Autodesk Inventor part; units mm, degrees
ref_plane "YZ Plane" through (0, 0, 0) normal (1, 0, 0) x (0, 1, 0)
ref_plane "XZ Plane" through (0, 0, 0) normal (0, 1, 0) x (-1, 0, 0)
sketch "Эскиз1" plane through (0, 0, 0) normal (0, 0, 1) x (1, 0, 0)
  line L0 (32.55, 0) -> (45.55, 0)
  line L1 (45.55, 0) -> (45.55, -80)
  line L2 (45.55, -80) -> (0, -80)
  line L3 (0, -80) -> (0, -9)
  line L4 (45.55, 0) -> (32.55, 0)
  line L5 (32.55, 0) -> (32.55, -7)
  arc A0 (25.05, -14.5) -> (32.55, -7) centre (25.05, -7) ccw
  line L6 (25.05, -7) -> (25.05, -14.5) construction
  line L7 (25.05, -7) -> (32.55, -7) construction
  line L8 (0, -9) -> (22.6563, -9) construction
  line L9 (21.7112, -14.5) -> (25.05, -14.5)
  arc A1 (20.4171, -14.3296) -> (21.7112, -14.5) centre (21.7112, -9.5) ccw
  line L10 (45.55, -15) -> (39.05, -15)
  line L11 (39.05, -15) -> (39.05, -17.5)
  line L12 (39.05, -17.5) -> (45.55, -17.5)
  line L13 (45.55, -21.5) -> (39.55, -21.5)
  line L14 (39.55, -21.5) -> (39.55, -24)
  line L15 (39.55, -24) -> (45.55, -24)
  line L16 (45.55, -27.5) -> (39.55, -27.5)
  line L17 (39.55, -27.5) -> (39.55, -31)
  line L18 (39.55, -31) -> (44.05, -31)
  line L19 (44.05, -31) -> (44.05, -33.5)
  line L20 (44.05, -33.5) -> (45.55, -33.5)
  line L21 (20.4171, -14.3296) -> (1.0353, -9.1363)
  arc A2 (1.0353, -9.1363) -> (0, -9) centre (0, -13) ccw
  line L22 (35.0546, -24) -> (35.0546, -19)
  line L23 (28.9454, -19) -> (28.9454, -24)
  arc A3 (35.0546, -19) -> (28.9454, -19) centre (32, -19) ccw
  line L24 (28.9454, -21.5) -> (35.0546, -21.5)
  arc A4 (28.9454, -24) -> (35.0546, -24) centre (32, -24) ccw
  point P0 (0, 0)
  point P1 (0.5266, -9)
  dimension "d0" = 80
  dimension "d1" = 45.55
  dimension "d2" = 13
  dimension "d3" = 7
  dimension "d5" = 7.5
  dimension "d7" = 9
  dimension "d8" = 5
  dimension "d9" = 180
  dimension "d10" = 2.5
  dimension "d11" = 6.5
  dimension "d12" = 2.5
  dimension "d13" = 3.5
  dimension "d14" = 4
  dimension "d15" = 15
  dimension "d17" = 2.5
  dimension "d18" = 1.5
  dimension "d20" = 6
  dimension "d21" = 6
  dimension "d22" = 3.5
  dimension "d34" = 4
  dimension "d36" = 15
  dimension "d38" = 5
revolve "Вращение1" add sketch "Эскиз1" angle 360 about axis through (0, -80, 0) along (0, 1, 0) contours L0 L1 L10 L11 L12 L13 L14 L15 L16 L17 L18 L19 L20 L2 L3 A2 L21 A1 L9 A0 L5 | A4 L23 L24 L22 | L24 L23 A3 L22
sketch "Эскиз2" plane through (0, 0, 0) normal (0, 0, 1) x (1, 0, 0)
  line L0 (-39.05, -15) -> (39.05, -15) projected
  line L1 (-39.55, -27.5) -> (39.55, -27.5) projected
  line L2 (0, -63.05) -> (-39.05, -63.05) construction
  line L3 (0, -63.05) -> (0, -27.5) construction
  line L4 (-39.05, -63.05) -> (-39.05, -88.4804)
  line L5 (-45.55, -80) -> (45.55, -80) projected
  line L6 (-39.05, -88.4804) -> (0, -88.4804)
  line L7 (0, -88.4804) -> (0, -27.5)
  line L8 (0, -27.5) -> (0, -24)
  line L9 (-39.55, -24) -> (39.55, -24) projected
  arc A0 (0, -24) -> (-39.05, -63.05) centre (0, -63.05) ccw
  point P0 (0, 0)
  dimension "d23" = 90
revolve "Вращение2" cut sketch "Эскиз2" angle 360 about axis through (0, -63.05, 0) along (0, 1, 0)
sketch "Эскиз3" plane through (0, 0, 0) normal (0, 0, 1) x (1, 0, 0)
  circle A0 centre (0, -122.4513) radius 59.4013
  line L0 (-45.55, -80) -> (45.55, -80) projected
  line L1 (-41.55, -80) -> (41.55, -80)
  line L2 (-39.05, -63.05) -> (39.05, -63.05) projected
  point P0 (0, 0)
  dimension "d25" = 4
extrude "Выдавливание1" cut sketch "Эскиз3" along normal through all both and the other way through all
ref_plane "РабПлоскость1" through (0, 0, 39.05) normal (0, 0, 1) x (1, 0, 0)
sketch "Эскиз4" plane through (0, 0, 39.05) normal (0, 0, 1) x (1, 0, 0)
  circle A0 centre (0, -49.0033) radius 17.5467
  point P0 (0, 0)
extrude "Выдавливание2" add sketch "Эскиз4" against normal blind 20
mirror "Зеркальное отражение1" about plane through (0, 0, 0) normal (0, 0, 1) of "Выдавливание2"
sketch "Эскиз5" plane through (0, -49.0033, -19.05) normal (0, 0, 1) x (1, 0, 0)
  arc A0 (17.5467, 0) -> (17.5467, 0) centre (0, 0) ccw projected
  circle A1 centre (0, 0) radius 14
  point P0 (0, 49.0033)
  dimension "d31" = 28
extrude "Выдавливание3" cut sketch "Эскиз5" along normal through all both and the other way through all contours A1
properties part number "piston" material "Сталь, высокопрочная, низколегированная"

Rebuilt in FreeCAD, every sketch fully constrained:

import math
import FreeCAD as App
import Part
import Sketcher

V = App.Vector
Q = App.Units.Quantity

doc = App.newDocument("Part")
body = doc.addObject("PartDesign::Body", "Body")

# Sketch on XY plane
sketch1 = body.newObject("Sketcher::SketchObject", "Sketch")
sketch1.AttachmentSupport = (doc.getObject("XY_Plane"), [""])
sketch1.MapMode = "FlatFace"
sketch1.addGeometry(Part.LineSegment(V(45.55, 0, 0), V(32.55, 0, 0)), False)
sketch1.addGeometry(Part.LineSegment(V(32.55, 0, 0), V(32.55, -7, 0)), False)
sketch1.addGeometry(Part.ArcOfCircle(Part.Circle(V(25.05, -7, 0), V(0, 0, 1), 7.5), math.radians(-90), math.radians(0)), False)
sketch1.addGeometry(Part.LineSegment(V(25.05, -14.5, 0), V(21.7112, -14.5, 0)), False)
sketch1.addGeometry(Part.ArcOfCircle(Part.Circle(V(21.711507, -9.498454, 0), V(0, 0, 1), 5.001546), math.radians(-104.998958), math.radians(-90.003523)), False)
sketch1.addGeometry(Part.LineSegment(V(20.4171, -14.3296, 0), V(1.0353, -9.1363, 0)), False)
sketch1.addGeometry(Part.ArcOfCircle(Part.Circle(V(0, -13, 0), V(0, 0, 1), 4.000003), math.radians(74.999658), math.radians(90)), False)
sketch1.addGeometry(Part.LineSegment(V(0, -9, 0), V(0, -80, 0)), False)
sketch1.addGeometry(Part.LineSegment(V(0, -80, 0), V(45.55, -80, 0)), False)
sketch1.addGeometry(Part.LineSegment(V(45.55, -80, 0), V(45.55, -33.5, 0)), False)
sketch1.addGeometry(Part.LineSegment(V(45.55, -33.5, 0), V(44.05, -33.5, 0)), False)
sketch1.addGeometry(Part.LineSegment(V(44.05, -33.5, 0), V(44.05, -31, 0)), False)
sketch1.addGeometry(Part.LineSegment(V(44.05, -31, 0), V(39.55, -31, 0)), False)
sketch1.addGeometry(Part.LineSegment(V(39.55, -31, 0), V(39.55, -27.5, 0)), False)
sketch1.addGeometry(Part.LineSegment(V(39.55, -27.5, 0), V(45.55, -27.5, 0)), False)
sketch1.addGeometry(Part.LineSegment(V(45.55, -27.5, 0), V(45.55, -24, 0)), False)
sketch1.addGeometry(Part.LineSegment(V(45.55, -24, 0), V(39.55, -24, 0)), False)
sketch1.addGeometry(Part.LineSegment(V(39.55, -24, 0), V(39.55, -21.5, 0)), False)
sketch1.addGeometry(Part.LineSegment(V(39.55, -21.5, 0), V(45.55, -21.5, 0)), False)
sketch1.addGeometry(Part.LineSegment(V(45.55, -21.5, 0), V(45.55, -17.5, 0)), False)
sketch1.addGeometry(Part.LineSegment(V(45.55, -17.5, 0), V(39.05, -17.5, 0)), False)
sketch1.addGeometry(Part.LineSegment(V(39.05, -17.5, 0), V(39.05, -15, 0)), False)
sketch1.addGeometry(Part.LineSegment(V(39.05, -15, 0), V(45.55, -15, 0)), False)
sketch1.addGeometry(Part.LineSegment(V(45.55, -15, 0), V(45.55, 0, 0)), False)
sketch1.addConstraint(Sketcher.Constraint("Coincident", 0, 2, 1, 1))
sketch1.addConstraint(Sketcher.Constraint("Tangent", 1, 2, 2, 2))
sketch1.addConstraint(Sketcher.Constraint("Tangent", 2, 1, 3, 1))
sketch1.addConstraint(Sketcher.Constraint("Tangent", 3, 2, 4, 2))
sketch1.addConstraint(Sketcher.Constraint("Tangent", 4, 1, 5, 1))
sketch1.addConstraint(Sketcher.Constraint("Tangent", 5, 2, 6, 1))
sketch1.addConstraint(Sketcher.Constraint("Coincident", 6, 2, 7, 1))
sketch1.addConstraint(Sketcher.Constraint("Coincident", 7, 2, 8, 1))
sketch1.addConstraint(Sketcher.Constraint("Coincident", 8, 2, 9, 1))
sketch1.addConstraint(Sketcher.Constraint("Coincident", 9, 2, 10, 1))
sketch1.addConstraint(Sketcher.Constraint("Coincident", 10, 2, 11, 1))
sketch1.addConstraint(Sketcher.Constraint("Coincident", 11, 2, 12, 1))
sketch1.addConstraint(Sketcher.Constraint("Coincident", 12, 2, 13, 1))
sketch1.addConstraint(Sketcher.Constraint("Coincident", 13, 2, 14, 1))
sketch1.addConstraint(Sketcher.Constraint("Coincident", 14, 2, 15, 1))
sketch1.addConstraint(Sketcher.Constraint("Coincident", 15, 2, 16, 1))
sketch1.addConstraint(Sketcher.Constraint("Coincident", 16, 2, 17, 1))
sketch1.addConstraint(Sketcher.Constraint("Coincident", 17, 2, 18, 1))
sketch1.addConstraint(Sketcher.Constraint("Coincident", 18, 2, 19, 1))
sketch1.addConstraint(Sketcher.Constraint("Coincident", 19, 2, 20, 1))
sketch1.addConstraint(Sketcher.Constraint("Coincident", 20, 2, 21, 1))
sketch1.addConstraint(Sketcher.Constraint("Coincident", 21, 2, 22, 1))
sketch1.addConstraint(Sketcher.Constraint("Coincident", 22, 2, 23, 1))
sketch1.addConstraint(Sketcher.Constraint("Coincident", 23, 2, 0, 1))
sketch1.addConstraint(Sketcher.Constraint("Horizontal", 0))
sketch1.addConstraint(Sketcher.Constraint("Vertical", 1))
sketch1.addConstraint(Sketcher.Constraint("Horizontal", 3))
sketch1.addConstraint(Sketcher.Constraint("Vertical", 7))
sketch1.addConstraint(Sketcher.Constraint("Horizontal", 8))
sketch1.addConstraint(Sketcher.Constraint("Vertical", 9))
sketch1.addConstraint(Sketcher.Constraint("Horizontal", 10))
sketch1.addConstraint(Sketcher.Constraint("Vertical", 11))
sketch1.addConstraint(Sketcher.Constraint("Horizontal", 12))
sketch1.addConstraint(Sketcher.Constraint("Vertical", 13))
sketch1.addConstraint(Sketcher.Constraint("Horizontal", 14))
sketch1.addConstraint(Sketcher.Constraint("Vertical", 15))
sketch1.addConstraint(Sketcher.Constraint("Horizontal", 16))
sketch1.addConstraint(Sketcher.Constraint("Vertical", 17))
sketch1.addConstraint(Sketcher.Constraint("Horizontal", 18))
sketch1.addConstraint(Sketcher.Constraint("Vertical", 19))
sketch1.addConstraint(Sketcher.Constraint("Horizontal", 20))
sketch1.addConstraint(Sketcher.Constraint("Vertical", 21))
sketch1.addConstraint(Sketcher.Constraint("Horizontal", 22))
sketch1.addConstraint(Sketcher.Constraint("Vertical", 23))
sketch1.addConstraint(Sketcher.Constraint("PointOnObject", 6, 3, -2))
sketch1.addConstraint(Sketcher.Constraint("PointOnObject", 0, 2, -1))
sketch1.addConstraint(Sketcher.Constraint("PointOnObject", 6, 2, -2))
sketch1.addConstraint(Sketcher.Constraint("Vertical", 9, 2, 14, 2))
sketch1.addConstraint(Sketcher.Constraint("Vertical", 13, 2, 16, 2))
sketch1.addConstraint(Sketcher.Constraint("Vertical", 15, 2, 18, 2))
sketch1.addConstraint(Sketcher.Constraint("Vertical", 19, 2, 22, 2))
sketch1.addConstraint(Sketcher.Constraint("Equal", 13, 15))
sketch1.addConstraint(Sketcher.Constraint("Equal", 11, 17))
sketch1.addConstraint(Sketcher.Constraint("Equal", 17, 21))
sketch1.addConstraint(Sketcher.Constraint("Radius", 6, 4.0))
sketch1.addConstraint(Sketcher.Constraint("Radius", 2, 7.5))
sketch1.addConstraint(Sketcher.Constraint("DistanceX", 0, 2, 0, 1, 13.0))
sketch1.addConstraint(Sketcher.Constraint("DistanceX", 14, 1, 14, 2, 6.0))
sketch1.addConstraint(Sketcher.Constraint("DistanceY", 1, 2, 1, 1, 7.0))
sketch1.addConstraint(Sketcher.Constraint("DistanceY", 19, 1, 19, 2, 4.0))
sketch1.addConstraint(Sketcher.Constraint("DistanceY", 23, 1, 23, 2, 15.0))
sketch1.addConstraint(Sketcher.Constraint("DistanceX", 10, 2, 10, 1, 1.5))
sketch1.addConstraint(Sketcher.Constraint("DistanceX", 20, 2, 20, 1, 6.5))
sketch1.addConstraint(Sketcher.Constraint("DistanceY", 11, 1, 11, 2, 2.5))
sketch1.addConstraint(Sketcher.Constraint("DistanceY", 13, 1, 13, 2, 3.5))
sketch1.addConstraint(Sketcher.Constraint("DistanceY", 6, 3, -1, 1, 13.0))
sketch1.addConstraint(Sketcher.Constraint("DistanceY", 7, 2, -1, 1, 80.0))
sketch1.addConstraint(Sketcher.Constraint("DistanceX", 8, 1, 8, 2, 45.55))
sketch1.addConstraint(Sketcher.Constraint("Angle", 5, Q("165 deg")))
sketch1.addConstraint(Sketcher.Constraint("Radius", 4, 5.0015))
revolution = body.newObject("PartDesign::Revolution", "Revolution")
revolution.Profile = sketch1
revolution.ReferenceAxis = (sketch1, ["V_Axis"])
revolution.Angle = 360

# Sketch on XY plane
sketch2 = body.newObject("Sketcher::SketchObject", "Sketch001")
sketch2.AttachmentSupport = (doc.getObject("XY_Plane"), [""])
sketch2.MapMode = "FlatFace"
sketch2.addGeometry(Part.ArcOfCircle(Part.Circle(V(0, -63.05, 0), V(0, 0, 1), 39.05), math.radians(90), math.radians(180)), False)
sketch2.addGeometry(Part.LineSegment(V(-39.05, -63.05, 0), V(-39.05, -88.4804, 0)), False)
sketch2.addGeometry(Part.LineSegment(V(-39.05, -88.4804, 0), V(0, -88.4804, 0)), False)
sketch2.addGeometry(Part.LineSegment(V(0, -88.4804, 0), V(0, -24, 0)), False)
sketch2.addConstraint(Sketcher.Constraint("Tangent", 0, 2, 1, 1))
sketch2.addConstraint(Sketcher.Constraint("Coincident", 1, 2, 2, 1))
sketch2.addConstraint(Sketcher.Constraint("Coincident", 2, 2, 3, 1))
sketch2.addConstraint(Sketcher.Constraint("Coincident", 3, 2, 0, 1))
sketch2.addConstraint(Sketcher.Constraint("Vertical", 1))
sketch2.addConstraint(Sketcher.Constraint("Horizontal", 2))
sketch2.addConstraint(Sketcher.Constraint("Vertical", 3))
sketch2.addConstraint(Sketcher.Constraint("PointOnObject", 0, 3, -2))
sketch2.addConstraint(Sketcher.Constraint("PointOnObject", 2, 2, -2))
sketch2.addConstraint(Sketcher.Constraint("Radius", 0, 39.05))
sketch2.addConstraint(Sketcher.Constraint("DistanceY", 3, 2, -1, 1, 24.0))
sketch2.addConstraint(Sketcher.Constraint("DistanceY", 1, 2, 1, 1, 25.4304))
groove = body.newObject("PartDesign::Groove", "Groove")
groove.Profile = sketch2
groove.ReferenceAxis = (sketch2, ["V_Axis"])
groove.Angle = 360

# Sketch on XY plane
sketch3 = body.newObject("Sketcher::SketchObject", "Sketch002")
sketch3.AttachmentSupport = (doc.getObject("XY_Plane"), [""])
sketch3.MapMode = "FlatFace"
sketch3.addGeometry(Part.Circle(V(0, -122.4513, 0), V(0, 0, 1), 59.4013), False)
sketch3.addConstraint(Sketcher.Constraint("PointOnObject", 0, 3, -2))
sketch3.addConstraint(Sketcher.Constraint("Diameter", 0, 118.8026))
sketch3.addConstraint(Sketcher.Constraint("DistanceY", 0, 3, -1, 1, 122.4513))
pocket1 = body.newObject("PartDesign::Pocket", "Pocket")
pocket1.Profile = sketch3
pocket1.Type = "ThroughAll"
pocket1.Midplane = True

# Sketch on XY plane
sketch4 = body.newObject("Sketcher::SketchObject", "Sketch003")
sketch4.AttachmentSupport = (doc.getObject("XY_Plane"), [""])
sketch4.MapMode = "FlatFace"
sketch4.AttachmentOffset = App.Placement(V(0, 0, 39.05), App.Rotation())
sketch4.addGeometry(Part.Circle(V(0, -49.0033, 0), V(0, 0, 1), 17.5467), False)
sketch4.addConstraint(Sketcher.Constraint("PointOnObject", 0, 3, -2))
sketch4.addConstraint(Sketcher.Constraint("Diameter", 0, 35.0934))
sketch4.addConstraint(Sketcher.Constraint("DistanceY", 0, 3, -1, 1, 49.0033))
pad1 = body.newObject("PartDesign::Pad", "Pad")
pad1.Profile = sketch4
pad1.Length = 20
pad1.Reversed = True
doc.recompute()

mirrored = body.newObject("PartDesign::Mirrored", "Mirrored")
mirrored.Originals = [pad1]
mirrored.MirrorPlane = (doc.getObject("XY_Plane"), [""])
body.Tip = mirrored

# Sketch on XY plane
sketch5 = body.newObject("Sketcher::SketchObject", "Sketch004")
sketch5.AttachmentSupport = (doc.getObject("XY_Plane"), [""])
sketch5.MapMode = "FlatFace"
sketch5.AttachmentOffset = App.Placement(V(0, 0, -19.05), App.Rotation())
sketch5.addGeometry(Part.Circle(V(0, -49.0033, 0), V(0, 0, 1), 14), False)
sketch5.addConstraint(Sketcher.Constraint("PointOnObject", 0, 3, -2))
sketch5.addConstraint(Sketcher.Constraint("Diameter", 0, 28.0))
sketch5.addConstraint(Sketcher.Constraint("DistanceY", 0, 3, -1, 1, 49.0033))
pocket2 = body.newObject("PartDesign::Pocket", "Pocket001")
pocket2.Profile = sketch5
pocket2.Type = "ThroughAll"
pocket2.Midplane = True

doc.recompute()
